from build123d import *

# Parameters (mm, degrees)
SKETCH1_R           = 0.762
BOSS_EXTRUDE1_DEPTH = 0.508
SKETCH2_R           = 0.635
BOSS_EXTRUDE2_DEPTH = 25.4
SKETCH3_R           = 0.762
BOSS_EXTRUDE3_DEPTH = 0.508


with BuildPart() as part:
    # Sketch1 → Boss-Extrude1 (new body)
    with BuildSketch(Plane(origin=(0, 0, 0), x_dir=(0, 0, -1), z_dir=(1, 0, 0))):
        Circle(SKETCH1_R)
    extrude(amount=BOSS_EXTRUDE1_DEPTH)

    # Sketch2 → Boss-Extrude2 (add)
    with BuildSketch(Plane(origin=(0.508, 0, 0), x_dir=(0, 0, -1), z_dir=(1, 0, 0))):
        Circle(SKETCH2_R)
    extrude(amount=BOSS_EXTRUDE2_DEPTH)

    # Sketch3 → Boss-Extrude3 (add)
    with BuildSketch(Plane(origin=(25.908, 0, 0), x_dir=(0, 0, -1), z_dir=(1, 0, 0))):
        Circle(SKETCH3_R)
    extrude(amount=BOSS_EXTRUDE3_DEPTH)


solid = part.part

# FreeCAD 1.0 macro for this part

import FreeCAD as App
import Part
import Sketcher
from FreeCAD import Vector
Q = App.Units.Quantity

doc = App.newDocument("Part")
body = doc.addObject("PartDesign::Body", "Body")

# Sketch on YZ plane
sketch1 = body.newObject("Sketcher::SketchObject", "Sketch")
sketch1.AttachmentSupport = (doc.getObject("YZ_Plane"), [""])
sketch1.MapMode = "FlatFace"
sketch1.addGeometry(Part.Circle(Vector(0, 0, 0), Vector(0, 0, 1), 0.8), False)
sketch1.addConstraint([
    Sketcher.Constraint("Coincident", 0, 3, -1, 1),
    Sketcher.Constraint("Diameter", 0, Q("0.06 in")),
])
pad1 = body.newObject("PartDesign::Pad", "Pad")
pad1.Profile = sketch1
pad1.Length = Q("0.02 in")

# Sketch on YZ plane
sketch2 = body.newObject("Sketcher::SketchObject", "Sketch001")
sketch2.AttachmentSupport = (doc.getObject("YZ_Plane"), [""])
sketch2.MapMode = "FlatFace"
sketch2.AttachmentOffset = App.Placement(Vector(0, 0, 0.02 * 25.4), App.Rotation())
sketch2.addGeometry(Part.Circle(Vector(0, 0, 0), Vector(0, 0, 1), 0.6), False)
sketch2.addConstraint([
    Sketcher.Constraint("Coincident", 0, 3, -1, 1),
    Sketcher.Constraint("Diameter", 0, Q("0.05 in")),
])
pad2 = body.newObject("PartDesign::Pad", "Pad001")
pad2.Profile = sketch2
pad2.Length = Q("1 in")

# Sketch on YZ plane
sketch3 = body.newObject("Sketcher::SketchObject", "Sketch002")
sketch3.AttachmentSupport = (doc.getObject("YZ_Plane"), [""])
sketch3.MapMode = "FlatFace"
sketch3.AttachmentOffset = App.Placement(Vector(0, 0, 1.02 * 25.4), App.Rotation())
sketch3.addGeometry(Part.Circle(Vector(0, 0, 0), Vector(0, 0, 1), 0.8), False)
sketch3.addConstraint([
    Sketcher.Constraint("Coincident", 0, 3, -1, 1),
    Sketcher.Constraint("Diameter", 0, Q("0.06 in")),
])
pad3 = body.newObject("PartDesign::Pad", "Pad002")
pad3.Profile = sketch3
pad3.Length = Q("0.02 in")

doc.recompute()
